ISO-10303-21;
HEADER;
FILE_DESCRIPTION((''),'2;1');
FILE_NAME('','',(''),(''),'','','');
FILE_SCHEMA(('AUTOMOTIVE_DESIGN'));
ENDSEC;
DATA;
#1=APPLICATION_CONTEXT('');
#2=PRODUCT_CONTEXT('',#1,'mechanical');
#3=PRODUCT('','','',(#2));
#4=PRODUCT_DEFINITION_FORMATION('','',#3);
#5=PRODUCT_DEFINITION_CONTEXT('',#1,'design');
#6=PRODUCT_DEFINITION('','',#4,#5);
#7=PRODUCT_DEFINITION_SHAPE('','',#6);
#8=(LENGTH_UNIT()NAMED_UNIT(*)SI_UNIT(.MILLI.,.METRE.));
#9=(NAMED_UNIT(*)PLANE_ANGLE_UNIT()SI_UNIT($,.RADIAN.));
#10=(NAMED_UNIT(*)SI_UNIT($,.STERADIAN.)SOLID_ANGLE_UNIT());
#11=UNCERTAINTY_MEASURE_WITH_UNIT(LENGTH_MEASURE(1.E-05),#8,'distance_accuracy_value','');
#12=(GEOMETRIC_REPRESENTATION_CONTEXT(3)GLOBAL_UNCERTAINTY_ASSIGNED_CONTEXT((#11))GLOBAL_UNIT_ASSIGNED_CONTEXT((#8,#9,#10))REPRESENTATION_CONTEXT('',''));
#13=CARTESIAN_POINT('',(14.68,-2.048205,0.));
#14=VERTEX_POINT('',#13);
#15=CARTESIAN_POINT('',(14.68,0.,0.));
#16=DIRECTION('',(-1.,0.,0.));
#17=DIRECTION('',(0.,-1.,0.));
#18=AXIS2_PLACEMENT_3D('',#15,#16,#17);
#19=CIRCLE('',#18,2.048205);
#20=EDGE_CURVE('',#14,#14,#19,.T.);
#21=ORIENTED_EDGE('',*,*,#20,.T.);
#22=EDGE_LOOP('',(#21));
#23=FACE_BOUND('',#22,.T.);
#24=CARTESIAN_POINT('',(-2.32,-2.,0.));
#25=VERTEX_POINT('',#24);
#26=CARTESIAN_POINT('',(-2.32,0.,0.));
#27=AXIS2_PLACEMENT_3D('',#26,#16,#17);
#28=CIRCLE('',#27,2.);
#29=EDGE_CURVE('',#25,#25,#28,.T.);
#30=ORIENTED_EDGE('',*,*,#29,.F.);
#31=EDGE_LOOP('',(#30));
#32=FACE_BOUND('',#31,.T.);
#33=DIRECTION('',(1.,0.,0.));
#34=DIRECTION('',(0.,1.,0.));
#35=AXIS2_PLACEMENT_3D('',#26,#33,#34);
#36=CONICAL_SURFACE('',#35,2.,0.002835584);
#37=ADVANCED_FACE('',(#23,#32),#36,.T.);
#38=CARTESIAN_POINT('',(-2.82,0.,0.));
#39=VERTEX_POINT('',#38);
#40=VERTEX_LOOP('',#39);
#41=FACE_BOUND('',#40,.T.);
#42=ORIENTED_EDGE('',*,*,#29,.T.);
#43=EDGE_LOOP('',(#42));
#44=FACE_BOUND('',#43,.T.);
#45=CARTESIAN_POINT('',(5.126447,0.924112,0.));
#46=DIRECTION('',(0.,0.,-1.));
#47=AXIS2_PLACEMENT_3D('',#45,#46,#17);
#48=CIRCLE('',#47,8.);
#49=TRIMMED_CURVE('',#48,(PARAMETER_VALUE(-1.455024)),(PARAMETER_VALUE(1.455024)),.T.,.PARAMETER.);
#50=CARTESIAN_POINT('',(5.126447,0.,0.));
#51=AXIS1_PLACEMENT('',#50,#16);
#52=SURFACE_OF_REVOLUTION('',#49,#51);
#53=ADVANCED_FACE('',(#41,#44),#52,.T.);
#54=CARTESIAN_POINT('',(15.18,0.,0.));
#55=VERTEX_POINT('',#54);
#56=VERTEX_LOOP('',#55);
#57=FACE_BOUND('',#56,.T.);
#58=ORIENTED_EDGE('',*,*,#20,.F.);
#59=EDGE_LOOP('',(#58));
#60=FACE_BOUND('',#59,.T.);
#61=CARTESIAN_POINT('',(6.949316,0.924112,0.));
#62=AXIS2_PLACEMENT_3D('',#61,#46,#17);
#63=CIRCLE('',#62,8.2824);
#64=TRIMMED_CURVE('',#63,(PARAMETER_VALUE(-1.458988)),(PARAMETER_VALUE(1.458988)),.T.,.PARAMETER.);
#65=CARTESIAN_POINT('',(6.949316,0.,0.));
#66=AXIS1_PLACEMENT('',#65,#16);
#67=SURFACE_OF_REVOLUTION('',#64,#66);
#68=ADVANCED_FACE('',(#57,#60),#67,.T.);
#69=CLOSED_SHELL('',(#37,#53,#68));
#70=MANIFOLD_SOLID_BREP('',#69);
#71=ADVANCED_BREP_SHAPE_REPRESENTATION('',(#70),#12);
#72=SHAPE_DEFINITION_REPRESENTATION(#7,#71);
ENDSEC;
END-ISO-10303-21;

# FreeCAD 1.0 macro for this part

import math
import FreeCAD as App
import Part
import Sketcher

doc = App.newDocument("Part")
params = doc.addObject("Spreadsheet::Sheet", "Params")
for row, (alias, value) in enumerate([
    ("sketch1_radius", "8 mm"),
    ("sketch1_width", "18 mm"),
    ("revolution_angle", "360 deg"),
], start=1):
    params.set(f"A{row}", alias)
    params.set(f"B{row}", "=" + value)
    params.setAlias(f"B{row}", alias)

body = doc.addObject("PartDesign::Body", "Body")

# Sketch on XY plane
sketch1 = body.newObject("Sketcher::SketchObject", "Sketch")
sketch1.AttachmentSupport = (doc.getObject("XY_Plane"), [""])
sketch1.MapMode = "FlatFace"
sketch1.addGeometry([
    Part.LineSegment(App.Vector(15.18, 0, 0), App.Vector(-2.82, 0, 0)),
    Part.ArcOfCircle(Part.Circle(App.Vector(5.126447, 0.924112, 0), App.Vector(0, 0, 1), 8), math.radians(-173.366729), math.radians(-158.560784)),
    Part.LineSegment(App.Vector(-2.32, -2, 0), App.Vector(14.68, -2.048205, 0)),
    Part.ArcOfCircle(Part.Circle(App.Vector(6.949315, 0.924112, 0), App.Vector(0, 0, 1), 8.2824), math.radians(-21.030903), math.radians(-6.406136)),
], False)
sketch1.addConstraint([
    Sketcher.Constraint("Coincident", 0, 2, 1, 1),
    Sketcher.Constraint("Coincident", 1, 2, 2, 1),
    Sketcher.Constraint("Coincident", 2, 2, 3, 1),
    Sketcher.Constraint("Coincident", 3, 2, 0, 1),
    Sketcher.Constraint("Horizontal", 0),
    Sketcher.Constraint("PointOnObject", 0, 2, -1),
    Sketcher.Constraint("Horizontal", 1, 3, 3, 3),
    Sketcher.Constraint("Radius", 1, 8.0),
    Sketcher.Constraint("DistanceX", 0, 2, 0, 1, 18.0),
    Sketcher.Constraint("DistanceY", 1, 2, -1, 1, 2.0),
    Sketcher.Constraint("DistanceX", 1, 2, 2, 2, 17.0),
    Sketcher.Constraint("Radius", 3, 8.2824),
    Sketcher.Constraint("DistanceX", 0, 2, 1, 2, 0.5),
    Sketcher.Constraint("DistanceX", 0, 2, -1, 1, 2.82),
])
sketch1.setExpression("Constraints[7]", "Params.sketch1_radius")
sketch1.setExpression("Constraints[8]", "Params.sketch1_width")
revolution = body.newObject("PartDesign::Revolution", "Revolution")
revolution.Profile = sketch1
revolution.ReferenceAxis = (sketch1, ["H_Axis"])
revolution.setExpression("Angle", "Params.revolution_angle")

doc.recompute()
